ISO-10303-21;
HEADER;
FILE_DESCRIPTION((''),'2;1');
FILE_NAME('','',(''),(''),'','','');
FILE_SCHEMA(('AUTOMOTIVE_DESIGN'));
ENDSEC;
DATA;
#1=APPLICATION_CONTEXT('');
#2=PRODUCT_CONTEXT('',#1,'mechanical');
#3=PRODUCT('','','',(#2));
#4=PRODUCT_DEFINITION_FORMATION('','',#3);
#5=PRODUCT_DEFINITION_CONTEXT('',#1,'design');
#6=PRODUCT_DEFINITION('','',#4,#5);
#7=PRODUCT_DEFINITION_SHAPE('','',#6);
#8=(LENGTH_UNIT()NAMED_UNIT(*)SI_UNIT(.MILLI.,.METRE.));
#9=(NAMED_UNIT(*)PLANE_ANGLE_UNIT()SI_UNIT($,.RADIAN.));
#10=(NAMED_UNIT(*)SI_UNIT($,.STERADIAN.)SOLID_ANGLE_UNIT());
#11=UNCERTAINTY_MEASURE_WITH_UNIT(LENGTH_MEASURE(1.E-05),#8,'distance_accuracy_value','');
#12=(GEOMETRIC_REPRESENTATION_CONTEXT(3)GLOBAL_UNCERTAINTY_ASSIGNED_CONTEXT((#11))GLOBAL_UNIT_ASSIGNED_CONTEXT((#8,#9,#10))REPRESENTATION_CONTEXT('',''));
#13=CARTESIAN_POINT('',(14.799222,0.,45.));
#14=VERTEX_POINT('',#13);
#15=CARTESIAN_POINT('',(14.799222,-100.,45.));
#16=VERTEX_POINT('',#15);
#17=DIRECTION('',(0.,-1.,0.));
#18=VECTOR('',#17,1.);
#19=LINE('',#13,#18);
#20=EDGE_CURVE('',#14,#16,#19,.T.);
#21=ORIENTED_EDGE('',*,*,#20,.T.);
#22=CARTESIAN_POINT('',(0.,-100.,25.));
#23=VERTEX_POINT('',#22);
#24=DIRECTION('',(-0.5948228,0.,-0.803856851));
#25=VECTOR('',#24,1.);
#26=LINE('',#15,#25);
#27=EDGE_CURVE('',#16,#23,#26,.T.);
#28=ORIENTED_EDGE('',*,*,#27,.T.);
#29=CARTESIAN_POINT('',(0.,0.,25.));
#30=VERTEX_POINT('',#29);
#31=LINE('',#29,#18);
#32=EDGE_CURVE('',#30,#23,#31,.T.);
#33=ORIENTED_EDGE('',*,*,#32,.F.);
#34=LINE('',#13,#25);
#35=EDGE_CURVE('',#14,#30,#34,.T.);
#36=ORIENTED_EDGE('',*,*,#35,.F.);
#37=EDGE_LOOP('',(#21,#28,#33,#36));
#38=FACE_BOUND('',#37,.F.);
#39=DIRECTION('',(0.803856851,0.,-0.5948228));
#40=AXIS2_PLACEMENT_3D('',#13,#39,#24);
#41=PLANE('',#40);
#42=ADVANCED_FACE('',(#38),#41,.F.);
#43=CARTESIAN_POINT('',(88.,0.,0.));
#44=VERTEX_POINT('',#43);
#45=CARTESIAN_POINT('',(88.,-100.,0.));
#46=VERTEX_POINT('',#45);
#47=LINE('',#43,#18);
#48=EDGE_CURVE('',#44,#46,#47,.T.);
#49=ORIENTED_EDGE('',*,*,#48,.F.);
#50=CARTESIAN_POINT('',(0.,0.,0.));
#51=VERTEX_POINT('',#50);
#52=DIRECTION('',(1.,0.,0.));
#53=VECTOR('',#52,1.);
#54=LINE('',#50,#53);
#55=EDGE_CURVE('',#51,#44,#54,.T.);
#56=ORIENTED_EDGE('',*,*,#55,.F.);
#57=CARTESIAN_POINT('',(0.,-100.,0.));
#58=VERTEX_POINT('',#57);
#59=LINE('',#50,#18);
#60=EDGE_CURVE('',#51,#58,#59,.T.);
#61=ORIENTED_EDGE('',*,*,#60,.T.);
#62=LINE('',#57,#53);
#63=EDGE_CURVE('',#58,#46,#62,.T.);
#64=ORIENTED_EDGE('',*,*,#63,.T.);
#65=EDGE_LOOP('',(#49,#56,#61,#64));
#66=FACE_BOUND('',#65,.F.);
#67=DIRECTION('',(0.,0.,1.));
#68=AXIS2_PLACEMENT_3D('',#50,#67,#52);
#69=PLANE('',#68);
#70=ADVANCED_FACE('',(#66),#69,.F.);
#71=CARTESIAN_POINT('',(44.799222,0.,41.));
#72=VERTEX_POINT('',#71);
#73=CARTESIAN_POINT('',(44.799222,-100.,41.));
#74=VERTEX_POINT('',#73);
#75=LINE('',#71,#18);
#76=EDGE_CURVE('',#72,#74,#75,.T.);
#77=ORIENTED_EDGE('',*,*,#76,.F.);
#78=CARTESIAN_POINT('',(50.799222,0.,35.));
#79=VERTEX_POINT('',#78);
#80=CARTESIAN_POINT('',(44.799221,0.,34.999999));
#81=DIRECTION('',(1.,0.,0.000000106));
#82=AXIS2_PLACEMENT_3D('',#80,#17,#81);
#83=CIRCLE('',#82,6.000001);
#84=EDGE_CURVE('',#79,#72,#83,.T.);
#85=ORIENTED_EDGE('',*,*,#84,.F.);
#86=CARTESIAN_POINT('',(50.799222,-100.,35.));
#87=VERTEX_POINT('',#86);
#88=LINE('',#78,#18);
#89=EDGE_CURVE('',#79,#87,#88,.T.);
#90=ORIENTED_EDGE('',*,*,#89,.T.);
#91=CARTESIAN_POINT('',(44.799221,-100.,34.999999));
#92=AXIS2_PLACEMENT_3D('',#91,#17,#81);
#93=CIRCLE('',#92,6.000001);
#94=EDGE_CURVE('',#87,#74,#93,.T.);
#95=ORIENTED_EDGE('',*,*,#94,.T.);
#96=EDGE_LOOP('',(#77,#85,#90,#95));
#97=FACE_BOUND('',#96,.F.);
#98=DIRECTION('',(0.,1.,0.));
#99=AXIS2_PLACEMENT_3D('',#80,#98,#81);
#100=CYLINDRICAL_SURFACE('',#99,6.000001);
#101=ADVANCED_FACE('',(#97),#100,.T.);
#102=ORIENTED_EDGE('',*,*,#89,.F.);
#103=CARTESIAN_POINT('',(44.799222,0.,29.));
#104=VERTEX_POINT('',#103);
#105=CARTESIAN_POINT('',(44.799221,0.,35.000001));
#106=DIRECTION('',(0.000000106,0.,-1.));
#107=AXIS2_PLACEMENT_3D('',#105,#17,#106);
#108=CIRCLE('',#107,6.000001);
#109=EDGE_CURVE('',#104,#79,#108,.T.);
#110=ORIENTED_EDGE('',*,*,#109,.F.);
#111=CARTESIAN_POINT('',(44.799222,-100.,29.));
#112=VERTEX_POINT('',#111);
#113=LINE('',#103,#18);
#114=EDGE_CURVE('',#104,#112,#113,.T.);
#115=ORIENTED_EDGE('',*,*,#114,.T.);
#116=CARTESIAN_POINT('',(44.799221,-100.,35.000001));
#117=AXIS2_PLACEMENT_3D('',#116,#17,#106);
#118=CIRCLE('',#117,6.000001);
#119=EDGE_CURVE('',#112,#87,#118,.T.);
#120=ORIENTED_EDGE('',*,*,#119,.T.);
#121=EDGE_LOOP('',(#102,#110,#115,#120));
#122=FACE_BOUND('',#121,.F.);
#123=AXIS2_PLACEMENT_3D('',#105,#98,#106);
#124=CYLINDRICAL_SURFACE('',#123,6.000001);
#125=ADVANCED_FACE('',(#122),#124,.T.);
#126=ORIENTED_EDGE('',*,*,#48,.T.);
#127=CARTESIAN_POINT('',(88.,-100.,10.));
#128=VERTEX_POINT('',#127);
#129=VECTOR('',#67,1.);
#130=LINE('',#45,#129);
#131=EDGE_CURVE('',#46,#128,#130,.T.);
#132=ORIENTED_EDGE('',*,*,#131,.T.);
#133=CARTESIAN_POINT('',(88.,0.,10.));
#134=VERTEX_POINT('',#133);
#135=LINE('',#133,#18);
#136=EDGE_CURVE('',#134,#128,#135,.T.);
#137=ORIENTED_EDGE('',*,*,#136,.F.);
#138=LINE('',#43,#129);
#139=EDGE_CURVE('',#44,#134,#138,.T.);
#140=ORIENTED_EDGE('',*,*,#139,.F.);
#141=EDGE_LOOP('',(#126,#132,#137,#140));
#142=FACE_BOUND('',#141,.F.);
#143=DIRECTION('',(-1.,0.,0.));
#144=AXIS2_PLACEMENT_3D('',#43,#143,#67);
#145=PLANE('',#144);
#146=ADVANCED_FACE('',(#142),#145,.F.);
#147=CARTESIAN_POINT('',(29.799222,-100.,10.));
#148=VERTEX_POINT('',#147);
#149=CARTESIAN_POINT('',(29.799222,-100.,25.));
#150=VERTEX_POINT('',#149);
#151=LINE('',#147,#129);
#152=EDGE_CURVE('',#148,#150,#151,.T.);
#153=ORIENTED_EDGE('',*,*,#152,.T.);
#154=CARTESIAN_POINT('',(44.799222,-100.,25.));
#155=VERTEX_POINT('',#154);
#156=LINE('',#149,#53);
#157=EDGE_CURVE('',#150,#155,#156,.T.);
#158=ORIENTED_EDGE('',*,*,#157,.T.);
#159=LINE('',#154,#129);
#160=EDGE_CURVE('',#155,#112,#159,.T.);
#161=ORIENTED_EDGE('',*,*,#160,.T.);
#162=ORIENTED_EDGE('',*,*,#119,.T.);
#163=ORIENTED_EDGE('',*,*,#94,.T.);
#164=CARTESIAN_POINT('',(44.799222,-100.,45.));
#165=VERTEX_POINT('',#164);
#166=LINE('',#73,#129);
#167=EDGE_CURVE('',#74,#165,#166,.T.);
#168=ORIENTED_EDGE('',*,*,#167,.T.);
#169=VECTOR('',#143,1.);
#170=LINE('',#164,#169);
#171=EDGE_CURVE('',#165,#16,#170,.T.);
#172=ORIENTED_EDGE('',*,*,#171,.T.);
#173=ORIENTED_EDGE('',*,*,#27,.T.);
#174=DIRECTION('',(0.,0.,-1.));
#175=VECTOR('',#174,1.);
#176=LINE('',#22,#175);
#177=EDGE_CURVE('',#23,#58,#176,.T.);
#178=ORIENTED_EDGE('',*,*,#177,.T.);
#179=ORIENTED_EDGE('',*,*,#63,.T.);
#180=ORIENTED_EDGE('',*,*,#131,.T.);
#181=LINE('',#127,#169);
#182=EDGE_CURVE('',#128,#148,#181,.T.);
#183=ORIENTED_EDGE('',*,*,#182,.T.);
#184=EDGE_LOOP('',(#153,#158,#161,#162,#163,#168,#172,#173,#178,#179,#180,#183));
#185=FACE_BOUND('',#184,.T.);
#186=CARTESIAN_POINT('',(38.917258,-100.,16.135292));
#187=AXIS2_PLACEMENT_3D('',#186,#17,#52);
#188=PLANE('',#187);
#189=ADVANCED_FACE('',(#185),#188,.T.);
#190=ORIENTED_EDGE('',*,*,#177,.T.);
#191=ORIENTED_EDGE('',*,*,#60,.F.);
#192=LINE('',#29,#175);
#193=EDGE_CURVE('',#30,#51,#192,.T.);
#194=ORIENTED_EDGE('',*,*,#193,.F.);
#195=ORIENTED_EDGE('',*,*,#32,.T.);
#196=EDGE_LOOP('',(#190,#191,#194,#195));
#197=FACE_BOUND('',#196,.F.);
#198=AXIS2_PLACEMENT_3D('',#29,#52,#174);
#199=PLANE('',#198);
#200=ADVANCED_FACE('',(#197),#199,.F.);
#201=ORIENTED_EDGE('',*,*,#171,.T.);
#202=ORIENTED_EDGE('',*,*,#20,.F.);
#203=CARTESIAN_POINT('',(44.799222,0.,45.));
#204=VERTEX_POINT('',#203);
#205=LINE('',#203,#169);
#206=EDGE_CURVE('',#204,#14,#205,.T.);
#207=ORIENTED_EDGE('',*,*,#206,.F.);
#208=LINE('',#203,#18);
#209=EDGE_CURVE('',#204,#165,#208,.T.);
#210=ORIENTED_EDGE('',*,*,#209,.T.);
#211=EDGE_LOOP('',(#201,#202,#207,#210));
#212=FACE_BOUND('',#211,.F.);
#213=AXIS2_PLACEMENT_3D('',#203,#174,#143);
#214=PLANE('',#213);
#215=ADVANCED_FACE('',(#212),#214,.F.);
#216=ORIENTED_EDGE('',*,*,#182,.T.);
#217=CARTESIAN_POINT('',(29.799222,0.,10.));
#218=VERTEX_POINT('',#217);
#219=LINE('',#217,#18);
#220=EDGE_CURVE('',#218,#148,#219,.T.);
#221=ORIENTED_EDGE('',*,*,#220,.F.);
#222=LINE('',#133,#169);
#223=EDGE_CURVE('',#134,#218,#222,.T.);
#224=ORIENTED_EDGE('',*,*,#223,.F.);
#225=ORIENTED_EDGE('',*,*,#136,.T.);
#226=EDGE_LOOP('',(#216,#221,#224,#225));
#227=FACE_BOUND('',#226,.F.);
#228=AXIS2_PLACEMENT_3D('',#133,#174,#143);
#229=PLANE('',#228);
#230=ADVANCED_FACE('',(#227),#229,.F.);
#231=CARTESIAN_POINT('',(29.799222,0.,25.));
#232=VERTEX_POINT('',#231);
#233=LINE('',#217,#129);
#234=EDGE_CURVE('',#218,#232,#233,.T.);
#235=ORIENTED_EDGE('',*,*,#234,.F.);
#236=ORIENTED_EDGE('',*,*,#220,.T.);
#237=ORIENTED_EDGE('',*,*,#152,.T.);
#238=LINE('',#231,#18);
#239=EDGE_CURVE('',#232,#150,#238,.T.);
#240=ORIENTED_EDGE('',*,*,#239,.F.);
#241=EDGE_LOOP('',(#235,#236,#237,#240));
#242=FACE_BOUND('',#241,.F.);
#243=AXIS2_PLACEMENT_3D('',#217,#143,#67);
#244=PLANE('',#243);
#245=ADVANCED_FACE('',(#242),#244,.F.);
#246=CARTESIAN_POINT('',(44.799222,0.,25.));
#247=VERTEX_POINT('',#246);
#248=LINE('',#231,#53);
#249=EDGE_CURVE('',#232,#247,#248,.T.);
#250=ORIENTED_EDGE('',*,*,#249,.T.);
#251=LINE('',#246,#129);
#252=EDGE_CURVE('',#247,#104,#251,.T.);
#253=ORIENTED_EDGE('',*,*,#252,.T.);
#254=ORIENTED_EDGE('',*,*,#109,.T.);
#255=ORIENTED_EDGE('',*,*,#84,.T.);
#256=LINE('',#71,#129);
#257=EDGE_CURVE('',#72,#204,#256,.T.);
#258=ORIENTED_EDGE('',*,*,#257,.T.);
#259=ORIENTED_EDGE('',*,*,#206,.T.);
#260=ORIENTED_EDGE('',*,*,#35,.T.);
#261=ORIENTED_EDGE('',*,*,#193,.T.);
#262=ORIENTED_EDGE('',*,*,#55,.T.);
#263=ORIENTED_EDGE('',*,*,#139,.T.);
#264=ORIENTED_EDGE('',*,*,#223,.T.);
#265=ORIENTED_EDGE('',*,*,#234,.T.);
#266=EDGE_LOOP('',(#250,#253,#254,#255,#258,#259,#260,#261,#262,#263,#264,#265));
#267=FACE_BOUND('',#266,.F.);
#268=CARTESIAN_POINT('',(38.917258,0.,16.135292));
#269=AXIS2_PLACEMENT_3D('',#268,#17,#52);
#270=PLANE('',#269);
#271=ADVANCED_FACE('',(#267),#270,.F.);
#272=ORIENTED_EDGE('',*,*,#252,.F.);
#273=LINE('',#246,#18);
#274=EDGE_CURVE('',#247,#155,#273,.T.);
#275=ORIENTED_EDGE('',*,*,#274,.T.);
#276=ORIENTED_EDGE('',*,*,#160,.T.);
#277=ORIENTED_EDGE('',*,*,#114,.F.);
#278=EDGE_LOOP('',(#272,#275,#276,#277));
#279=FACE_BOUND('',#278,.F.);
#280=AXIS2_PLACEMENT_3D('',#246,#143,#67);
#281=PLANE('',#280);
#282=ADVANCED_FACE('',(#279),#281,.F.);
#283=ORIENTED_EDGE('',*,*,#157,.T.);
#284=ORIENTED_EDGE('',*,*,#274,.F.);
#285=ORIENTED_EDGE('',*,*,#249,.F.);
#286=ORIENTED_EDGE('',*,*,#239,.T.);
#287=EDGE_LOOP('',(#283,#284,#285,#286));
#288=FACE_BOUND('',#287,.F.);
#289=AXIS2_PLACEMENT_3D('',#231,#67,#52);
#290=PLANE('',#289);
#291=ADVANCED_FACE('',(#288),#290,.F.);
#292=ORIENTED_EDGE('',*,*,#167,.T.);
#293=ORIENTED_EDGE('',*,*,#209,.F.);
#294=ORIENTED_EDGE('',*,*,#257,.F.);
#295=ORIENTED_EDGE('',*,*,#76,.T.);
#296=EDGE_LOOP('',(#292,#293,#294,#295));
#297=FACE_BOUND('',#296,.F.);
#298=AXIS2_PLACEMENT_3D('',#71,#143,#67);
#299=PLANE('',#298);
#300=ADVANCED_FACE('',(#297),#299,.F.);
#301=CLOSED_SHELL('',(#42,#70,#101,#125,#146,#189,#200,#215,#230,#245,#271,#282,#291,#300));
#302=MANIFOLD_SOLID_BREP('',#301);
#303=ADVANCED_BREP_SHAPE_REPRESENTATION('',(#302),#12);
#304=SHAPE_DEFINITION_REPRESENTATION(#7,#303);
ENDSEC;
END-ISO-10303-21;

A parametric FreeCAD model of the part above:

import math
import FreeCAD as App
import Part
import Sketcher
from FreeCAD import Vector
Q = App.Units.Quantity

doc = App.newDocument("Part")
body = doc.addObject("PartDesign::Body", "Body")

# Sketch on XZ plane
sketch1 = doc.addObject("Sketcher::SketchObject", "Sketch")
body.addObject(sketch1)
sketch1.AttachmentSupport = (doc.XZ_Plane, [""])
sketch1.MapMode = "FlatFace"
sketch1.addGeometry(Part.LineSegment(Vector(0, 25, 0), Vector(0, 0, 0)), False)
sketch1.addGeometry(Part.LineSegment(Vector(0, 0, 0), Vector(88, 0, 0)), False)
sketch1.addGeometry(Part.LineSegment(Vector(88, 0, 0), Vector(88, 10, 0)), False)
sketch1.addGeometry(Part.LineSegment(Vector(88, 10, 0), Vector(29.799222, 10, 0)), False)
sketch1.addGeometry(Part.LineSegment(Vector(29.799222, 10, 0), Vector(29.799222, 25, 0)), False)
sketch1.addGeometry(Part.LineSegment(Vector(29.799222, 25, 0), Vector(44.799222, 25, 0)), False)
sketch1.addGeometry(Part.LineSegment(Vector(44.799222, 25, 0), Vector(44.799222, 29, 0)), False)
sketch1.addGeometry(Part.ArcOfCircle(Part.Circle(Vector(44.799221, 35.000001, 0), Vector(0, 0, 1), 6.000001), math.radians(-89.999994), math.radians(-0.000006)), False)
sketch1.addGeometry(Part.ArcOfCircle(Part.Circle(Vector(44.799221, 34.999999, 0), Vector(0, 0, 1), 6.000001), math.radians(0.000006), math.radians(89.999994)), False)
sketch1.addGeometry(Part.LineSegment(Vector(44.799222, 41, 0), Vector(44.799222, 45, 0)), False)
sketch1.addGeometry(Part.LineSegment(Vector(44.799222, 45, 0), Vector(14.799222, 45, 0)), False)
sketch1.addGeometry(Part.LineSegment(Vector(14.799222, 45, 0), Vector(0, 25, 0)), False)
sketch1.addConstraint(Sketcher.Constraint("Coincident", 0, 2, 1, 1))
sketch1.addConstraint(Sketcher.Constraint("Coincident", 1, 2, 2, 1))
sketch1.addConstraint(Sketcher.Constraint("Coincident", 2, 2, 3, 1))
sketch1.addConstraint(Sketcher.Constraint("Coincident", 3, 2, 4, 1))
sketch1.addConstraint(Sketcher.Constraint("Coincident", 4, 2, 5, 1))
sketch1.addConstraint(Sketcher.Constraint("Coincident", 5, 2, 6, 1))
sketch1.addConstraint(Sketcher.Constraint("Coincident", 6, 2, 7, 1))
sketch1.addConstraint(Sketcher.Constraint("Tangent", 7, 2, 8, 1))
sketch1.addConstraint(Sketcher.Constraint("Coincident", 8, 2, 9, 1))
sketch1.addConstraint(Sketcher.Constraint("Coincident", 9, 2, 10, 1))
sketch1.addConstraint(Sketcher.Constraint("Coincident", 10, 2, 11, 1))
sketch1.addConstraint(Sketcher.Constraint("Coincident", 11, 2, 0, 1))
sketch1.addConstraint(Sketcher.Constraint("Vertical", 0))
sketch1.addConstraint(Sketcher.Constraint("Horizontal", 1))
sketch1.addConstraint(Sketcher.Constraint("Vertical", 2))
sketch1.addConstraint(Sketcher.Constraint("Horizontal", 3))
sketch1.addConstraint(Sketcher.Constraint("Vertical", 4))
sketch1.addConstraint(Sketcher.Constraint("Horizontal", 5))
sketch1.addConstraint(Sketcher.Constraint("Vertical", 6))
sketch1.addConstraint(Sketcher.Constraint("Vertical", 9))
sketch1.addConstraint(Sketcher.Constraint("Horizontal", 10))
sketch1.addConstraint(Sketcher.Constraint("Coincident", 0, 2, -1, 1))
sketch1.addConstraint(Sketcher.Constraint("Equal", 7, 8))
sketch1.addConstraint(Sketcher.Constraint("Horizontal", 8, 3, 7, 2))
sketch1.addConstraint(Sketcher.Constraint("Horizontal", 5, 2, 11, 2))
sketch1.addConstraint(Sketcher.Constraint("Vertical", 8, 3, 5, 2))
sketch1.addConstraint(Sketcher.Constraint("Vertical", 6, 2, 8, 2))
sketch1.addConstraint(Sketcher.Constraint("Equal", 5, 4))
sketch1.addConstraint(Sketcher.Constraint("Equal", 6, 9))
sketch1.addConstraint(Sketcher.Constraint("Radius", 7, 6.000001))
sketch1.addConstraint(Sketcher.Constraint("DistanceX", 1, 1, 1, 2, 88.0))
sketch1.addConstraint(Sketcher.Constraint("DistanceX", 5, 1, 5, 2, 15.0))
sketch1.addConstraint(Sketcher.Constraint("DistanceX", 10, 2, 10, 1, 30.0))
sketch1.addConstraint(Sketcher.Constraint("DistanceY", 0, 2, 0, 1, 25.0))
sketch1.addConstraint(Sketcher.Constraint("DistanceY", 6, 1, 6, 2, 4.0))
sketch1.addConstraint(Sketcher.Constraint("Angle", 11, Q("-126.500001 deg")))
pad1 = doc.addObject("PartDesign::Pad", "Pad")
body.addObject(pad1)
pad1.Profile = sketch1
pad1.Length = 100

doc.recompute()
